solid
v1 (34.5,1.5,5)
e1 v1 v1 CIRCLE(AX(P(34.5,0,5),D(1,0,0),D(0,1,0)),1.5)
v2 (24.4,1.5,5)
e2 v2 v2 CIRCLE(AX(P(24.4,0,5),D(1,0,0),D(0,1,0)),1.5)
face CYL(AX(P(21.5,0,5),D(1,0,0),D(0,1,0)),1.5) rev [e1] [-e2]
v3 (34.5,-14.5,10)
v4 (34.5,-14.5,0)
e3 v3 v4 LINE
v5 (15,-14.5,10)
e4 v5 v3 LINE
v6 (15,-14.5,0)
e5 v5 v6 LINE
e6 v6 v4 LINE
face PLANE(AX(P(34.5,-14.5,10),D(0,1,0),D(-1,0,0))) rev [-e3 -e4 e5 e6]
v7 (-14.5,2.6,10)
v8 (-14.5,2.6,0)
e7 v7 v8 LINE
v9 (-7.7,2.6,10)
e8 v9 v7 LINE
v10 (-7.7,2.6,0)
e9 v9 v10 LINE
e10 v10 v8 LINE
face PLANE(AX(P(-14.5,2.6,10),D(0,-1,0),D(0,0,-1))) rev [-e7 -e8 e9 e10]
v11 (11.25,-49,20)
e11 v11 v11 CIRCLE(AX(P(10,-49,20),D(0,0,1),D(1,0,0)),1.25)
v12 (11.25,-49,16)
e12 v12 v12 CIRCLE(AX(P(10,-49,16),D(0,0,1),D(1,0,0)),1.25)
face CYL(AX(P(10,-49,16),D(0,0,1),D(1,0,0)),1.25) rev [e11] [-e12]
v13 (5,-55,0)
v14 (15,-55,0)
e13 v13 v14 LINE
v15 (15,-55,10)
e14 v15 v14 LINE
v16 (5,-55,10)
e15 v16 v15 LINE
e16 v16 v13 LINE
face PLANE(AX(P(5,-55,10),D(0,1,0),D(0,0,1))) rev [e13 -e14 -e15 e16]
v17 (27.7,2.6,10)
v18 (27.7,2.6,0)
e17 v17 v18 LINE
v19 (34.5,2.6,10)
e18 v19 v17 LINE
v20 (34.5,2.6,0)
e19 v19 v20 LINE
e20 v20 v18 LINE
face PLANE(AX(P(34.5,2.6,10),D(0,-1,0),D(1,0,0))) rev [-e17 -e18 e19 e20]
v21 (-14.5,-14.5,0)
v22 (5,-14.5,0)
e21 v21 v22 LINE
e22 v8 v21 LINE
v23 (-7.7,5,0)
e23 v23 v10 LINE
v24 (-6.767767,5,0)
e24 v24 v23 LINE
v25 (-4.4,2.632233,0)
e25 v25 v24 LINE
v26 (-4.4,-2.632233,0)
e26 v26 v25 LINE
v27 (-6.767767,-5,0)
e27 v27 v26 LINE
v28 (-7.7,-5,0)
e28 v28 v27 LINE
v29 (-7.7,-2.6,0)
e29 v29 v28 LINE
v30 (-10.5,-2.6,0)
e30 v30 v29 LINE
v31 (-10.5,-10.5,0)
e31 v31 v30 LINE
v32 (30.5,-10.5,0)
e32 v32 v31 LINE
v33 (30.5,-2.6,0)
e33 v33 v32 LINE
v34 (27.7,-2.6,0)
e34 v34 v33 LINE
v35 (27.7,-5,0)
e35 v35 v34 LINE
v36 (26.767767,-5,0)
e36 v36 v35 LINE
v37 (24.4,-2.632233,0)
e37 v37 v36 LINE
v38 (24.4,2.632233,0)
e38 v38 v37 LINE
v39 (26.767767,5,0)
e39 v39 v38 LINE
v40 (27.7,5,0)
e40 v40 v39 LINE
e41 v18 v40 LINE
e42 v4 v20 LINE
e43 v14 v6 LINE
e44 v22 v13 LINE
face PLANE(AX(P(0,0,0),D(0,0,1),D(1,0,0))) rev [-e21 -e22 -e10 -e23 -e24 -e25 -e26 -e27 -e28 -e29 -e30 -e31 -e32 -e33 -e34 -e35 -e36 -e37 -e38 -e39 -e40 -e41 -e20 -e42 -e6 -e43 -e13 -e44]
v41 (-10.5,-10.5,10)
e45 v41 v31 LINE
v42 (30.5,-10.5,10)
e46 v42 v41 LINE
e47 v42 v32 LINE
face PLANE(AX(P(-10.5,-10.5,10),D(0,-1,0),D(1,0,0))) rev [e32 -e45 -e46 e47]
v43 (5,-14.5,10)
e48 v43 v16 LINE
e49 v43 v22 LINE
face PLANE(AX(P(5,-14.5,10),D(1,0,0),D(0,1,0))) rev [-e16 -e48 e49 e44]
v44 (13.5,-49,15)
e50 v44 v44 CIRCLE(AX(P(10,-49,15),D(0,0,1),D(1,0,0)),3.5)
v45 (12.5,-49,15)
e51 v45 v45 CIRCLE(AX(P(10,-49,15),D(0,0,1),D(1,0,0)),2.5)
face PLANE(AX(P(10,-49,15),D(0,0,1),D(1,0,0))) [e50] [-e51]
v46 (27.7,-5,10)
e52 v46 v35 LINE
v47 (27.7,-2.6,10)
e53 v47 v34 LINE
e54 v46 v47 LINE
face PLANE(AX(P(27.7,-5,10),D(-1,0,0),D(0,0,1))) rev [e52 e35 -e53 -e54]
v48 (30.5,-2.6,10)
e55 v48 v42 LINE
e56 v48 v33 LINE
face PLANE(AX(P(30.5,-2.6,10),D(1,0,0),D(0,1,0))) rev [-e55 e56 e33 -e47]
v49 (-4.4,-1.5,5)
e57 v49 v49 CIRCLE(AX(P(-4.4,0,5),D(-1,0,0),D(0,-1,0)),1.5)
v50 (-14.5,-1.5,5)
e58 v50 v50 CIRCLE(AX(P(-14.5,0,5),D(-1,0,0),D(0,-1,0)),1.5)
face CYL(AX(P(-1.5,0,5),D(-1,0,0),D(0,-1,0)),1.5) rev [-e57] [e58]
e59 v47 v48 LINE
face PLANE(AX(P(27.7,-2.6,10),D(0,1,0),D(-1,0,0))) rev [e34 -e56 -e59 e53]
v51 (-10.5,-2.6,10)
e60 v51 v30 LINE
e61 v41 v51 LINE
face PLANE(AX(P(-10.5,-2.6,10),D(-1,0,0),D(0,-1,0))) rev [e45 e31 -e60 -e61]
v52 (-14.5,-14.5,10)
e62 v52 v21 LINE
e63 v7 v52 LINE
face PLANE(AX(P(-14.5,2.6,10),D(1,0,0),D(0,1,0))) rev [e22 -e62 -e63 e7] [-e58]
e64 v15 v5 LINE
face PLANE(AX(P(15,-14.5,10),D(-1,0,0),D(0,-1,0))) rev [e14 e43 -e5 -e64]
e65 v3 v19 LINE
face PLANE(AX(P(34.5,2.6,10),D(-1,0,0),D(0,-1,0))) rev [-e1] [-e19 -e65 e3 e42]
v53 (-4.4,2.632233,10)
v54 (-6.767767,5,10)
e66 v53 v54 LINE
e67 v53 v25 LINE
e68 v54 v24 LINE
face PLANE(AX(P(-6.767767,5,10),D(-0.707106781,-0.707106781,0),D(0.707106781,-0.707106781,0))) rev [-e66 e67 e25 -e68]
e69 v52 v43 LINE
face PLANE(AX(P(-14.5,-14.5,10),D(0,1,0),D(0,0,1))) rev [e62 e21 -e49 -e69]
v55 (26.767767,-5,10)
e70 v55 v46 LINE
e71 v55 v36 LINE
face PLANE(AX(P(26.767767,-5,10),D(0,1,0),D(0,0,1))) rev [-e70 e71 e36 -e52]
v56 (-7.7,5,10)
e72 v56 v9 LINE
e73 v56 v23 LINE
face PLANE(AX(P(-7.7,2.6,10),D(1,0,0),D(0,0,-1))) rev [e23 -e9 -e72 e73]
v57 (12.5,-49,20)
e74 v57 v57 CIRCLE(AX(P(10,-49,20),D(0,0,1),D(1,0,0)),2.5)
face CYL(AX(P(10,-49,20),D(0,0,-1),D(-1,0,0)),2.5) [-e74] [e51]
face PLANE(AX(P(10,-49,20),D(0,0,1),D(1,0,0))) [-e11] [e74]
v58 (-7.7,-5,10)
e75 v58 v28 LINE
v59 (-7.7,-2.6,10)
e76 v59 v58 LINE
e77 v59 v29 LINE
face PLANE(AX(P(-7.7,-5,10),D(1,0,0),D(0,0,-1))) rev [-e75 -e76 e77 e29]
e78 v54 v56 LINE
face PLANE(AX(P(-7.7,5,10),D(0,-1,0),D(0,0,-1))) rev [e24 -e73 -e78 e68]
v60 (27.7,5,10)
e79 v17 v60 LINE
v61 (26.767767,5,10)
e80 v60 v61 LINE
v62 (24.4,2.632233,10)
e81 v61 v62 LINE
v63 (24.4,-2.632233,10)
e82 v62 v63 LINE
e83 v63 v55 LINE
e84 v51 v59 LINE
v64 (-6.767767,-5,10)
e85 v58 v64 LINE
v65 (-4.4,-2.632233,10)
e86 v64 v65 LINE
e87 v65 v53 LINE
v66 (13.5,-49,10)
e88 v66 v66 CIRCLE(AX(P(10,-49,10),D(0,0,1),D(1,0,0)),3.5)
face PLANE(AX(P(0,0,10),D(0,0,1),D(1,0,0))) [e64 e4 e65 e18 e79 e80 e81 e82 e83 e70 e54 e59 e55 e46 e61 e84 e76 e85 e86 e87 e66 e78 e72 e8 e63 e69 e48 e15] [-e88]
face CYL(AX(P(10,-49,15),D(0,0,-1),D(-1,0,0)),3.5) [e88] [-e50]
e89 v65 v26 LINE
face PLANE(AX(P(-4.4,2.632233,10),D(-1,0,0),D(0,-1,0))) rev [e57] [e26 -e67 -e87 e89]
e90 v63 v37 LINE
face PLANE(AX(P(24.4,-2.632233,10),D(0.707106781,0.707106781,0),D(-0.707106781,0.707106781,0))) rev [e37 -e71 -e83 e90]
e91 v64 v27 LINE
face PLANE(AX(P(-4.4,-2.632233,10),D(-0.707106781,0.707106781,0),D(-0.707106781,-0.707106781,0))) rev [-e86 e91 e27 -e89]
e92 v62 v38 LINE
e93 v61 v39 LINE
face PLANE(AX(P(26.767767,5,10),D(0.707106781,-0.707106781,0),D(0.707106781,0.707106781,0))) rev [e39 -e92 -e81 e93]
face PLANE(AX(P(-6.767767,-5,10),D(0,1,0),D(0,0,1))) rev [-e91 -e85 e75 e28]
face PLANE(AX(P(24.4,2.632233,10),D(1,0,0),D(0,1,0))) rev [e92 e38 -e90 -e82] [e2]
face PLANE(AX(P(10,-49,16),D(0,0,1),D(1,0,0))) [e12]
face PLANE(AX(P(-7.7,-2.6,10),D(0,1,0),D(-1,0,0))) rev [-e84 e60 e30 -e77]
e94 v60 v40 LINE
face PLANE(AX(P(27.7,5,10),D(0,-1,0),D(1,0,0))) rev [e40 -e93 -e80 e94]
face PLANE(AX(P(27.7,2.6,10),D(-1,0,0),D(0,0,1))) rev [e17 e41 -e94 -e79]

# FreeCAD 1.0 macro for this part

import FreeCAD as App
import Part
import Sketcher

V = App.Vector

doc = App.newDocument("Part")
body = doc.addObject("PartDesign::Body", "Body")

# Sketch on XY plane
sketch1 = body.newObject("Sketcher::SketchObject", "Sketch")
sketch1.AttachmentSupport = (doc.getObject("XY_Plane"), [""])
sketch1.MapMode = "FlatFace"
sketch1.addGeometry([
    Part.LineSegment(V(-7.7, 2.6, 0), V(-14.5, 2.6, 0)),  # 0
    Part.LineSegment(V(-14.5, 2.6, 0), V(-14.5, -14.5, 0)),  # 1
    Part.LineSegment(V(-14.5, -14.5, 0), V(5, -14.5, 0)),  # 2
    Part.LineSegment(V(5, -14.5, 0), V(5, -55, 0)),  # 3
    Part.LineSegment(V(5, -55, 0), V(15, -55, 0)),  # 4
    Part.LineSegment(V(15, -55, 0), V(15, -14.5, 0)),  # 5
    Part.LineSegment(V(15, -14.5, 0), V(34.5, -14.5, 0)),  # 6
    Part.LineSegment(V(34.5, -14.5, 0), V(34.5, 2.6, 0)),  # 7
    Part.LineSegment(V(34.5, 2.6, 0), V(27.7, 2.6, 0)),  # 8
    Part.LineSegment(V(27.7, 2.6, 0), V(27.7, 5, 0)),  # 9
    Part.LineSegment(V(27.7, 5, 0), V(26.767767, 5, 0)),  # 10
    Part.LineSegment(V(26.767767, 5, 0), V(24.4, 2.632233, 0)),  # 11
    Part.LineSegment(V(24.4, 2.632233, 0), V(24.4, -2.632233, 0)),  # 12
    Part.LineSegment(V(24.4, -2.632233, 0), V(26.767767, -5, 0)),  # 13
    Part.LineSegment(V(26.767767, -5, 0), V(27.7, -5, 0)),  # 14
    Part.LineSegment(V(27.7, -5, 0), V(27.7, -2.6, 0)),  # 15
    Part.LineSegment(V(27.7, -2.6, 0), V(30.5, -2.6, 0)),  # 16
    Part.LineSegment(V(30.5, -2.6, 0), V(30.5, -10.5, 0)),  # 17
    Part.LineSegment(V(30.5, -10.5, 0), V(-10.5, -10.5, 0)),  # 18
    Part.LineSegment(V(-10.5, -10.5, 0), V(-10.5, -2.6, 0)),  # 19
    Part.LineSegment(V(-10.5, -2.6, 0), V(-7.7, -2.6, 0)),  # 20
    Part.LineSegment(V(-7.7, -2.6, 0), V(-7.7, -5, 0)),  # 21
    Part.LineSegment(V(-7.7, -5, 0), V(-6.767767, -5, 0)),  # 22
    Part.LineSegment(V(-6.767767, -5, 0), V(-4.4, -2.632233, 0)),  # 23
    Part.LineSegment(V(-4.4, -2.632233, 0), V(-4.4, 2.632233, 0)),  # 24
    Part.LineSegment(V(-4.4, 2.632233, 0), V(-6.767767, 5, 0)),  # 25
    Part.LineSegment(V(-6.767767, 5, 0), V(-7.7, 5, 0)),  # 26
    Part.LineSegment(V(-7.7, 5, 0), V(-7.7, 2.6, 0)),  # 27
], False)
sketch1.addConstraint([
    Sketcher.Constraint("Coincident", 0, 2, 1, 1),
    Sketcher.Constraint("Coincident", 1, 2, 2, 1),
    Sketcher.Constraint("Coincident", 2, 2, 3, 1),
    Sketcher.Constraint("Coincident", 3, 2, 4, 1),
    Sketcher.Constraint("Coincident", 4, 2, 5, 1),
    Sketcher.Constraint("Coincident", 5, 2, 6, 1),
    Sketcher.Constraint("Coincident", 6, 2, 7, 1),
    Sketcher.Constraint("Coincident", 7, 2, 8, 1),
    Sketcher.Constraint("Coincident", 8, 2, 9, 1),
    Sketcher.Constraint("Coincident", 9, 2, 10, 1),
    Sketcher.Constraint("Coincident", 10, 2, 11, 1),
    Sketcher.Constraint("Coincident", 11, 2, 12, 1),
    Sketcher.Constraint("Coincident", 12, 2, 13, 1),
    Sketcher.Constraint("Coincident", 13, 2, 14, 1),
    Sketcher.Constraint("Coincident", 14, 2, 15, 1),
    Sketcher.Constraint("Coincident", 15, 2, 16, 1),
    Sketcher.Constraint("Coincident", 16, 2, 17, 1),
    Sketcher.Constraint("Coincident", 17, 2, 18, 1),
    Sketcher.Constraint("Coincident", 18, 2, 19, 1),
    Sketcher.Constraint("Coincident", 19, 2, 20, 1),
    Sketcher.Constraint("Coincident", 20, 2, 21, 1),
    Sketcher.Constraint("Coincident", 21, 2, 22, 1),
    Sketcher.Constraint("Coincident", 22, 2, 23, 1),
    Sketcher.Constraint("Coincident", 23, 2, 24, 1),
    Sketcher.Constraint("Coincident", 24, 2, 25, 1),
    Sketcher.Constraint("Coincident", 25, 2, 26, 1),
    Sketcher.Constraint("Coincident", 26, 2, 27, 1),
    Sketcher.Constraint("Coincident", 27, 2, 0, 1),
    Sketcher.Constraint("Horizontal", 0),
    Sketcher.Constraint("Vertical", 1),
    Sketcher.Constraint("Horizontal", 2),
    Sketcher.Constraint("Vertical", 3),
    Sketcher.Constraint("Horizontal", 4),
    Sketcher.Constraint("Vertical", 5),
    Sketcher.Constraint("Horizontal", 6),
    Sketcher.Constraint("Vertical", 7),
    Sketcher.Constraint("Horizontal", 8),
    Sketcher.Constraint("Vertical", 9),
    Sketcher.Constraint("Horizontal", 10),
    Sketcher.Constraint("Vertical", 12),
    Sketcher.Constraint("Horizontal", 14),
    Sketcher.Constraint("Vertical", 15),
    Sketcher.Constraint("Horizontal", 16),
    Sketcher.Constraint("Vertical", 17),
    Sketcher.Constraint("Horizontal", 18),
    Sketcher.Constraint("Vertical", 19),
    Sketcher.Constraint("Horizontal", 20),
    Sketcher.Constraint("Vertical", 21),
    Sketcher.Constraint("Horizontal", 22),
    Sketcher.Constraint("Vertical", 24),
    Sketcher.Constraint("Horizontal", 26),
    Sketcher.Constraint("Vertical", 27),
    Sketcher.Constraint("Symmetric", 10, 2, 13, 2, -1),
    Sketcher.Constraint("Symmetric", 8, 2, 15, 2, -1),
    Sketcher.Constraint("Symmetric", 22, 2, 25, 2, -1),
    Sketcher.Constraint("Symmetric", 20, 2, 27, 2, -1),
    Sketcher.Constraint("Perpendicular", 11, 13),
    Sketcher.Constraint("Perpendicular", 13, 23),
    Sketcher.Constraint("Perpendicular", 23, 25),
    Sketcher.Constraint("Horizontal", 2, 2, 5, 2),
    Sketcher.Constraint("Horizontal", 0, 2, 7, 2),
    Sketcher.Constraint("Horizontal", 14, 2, 21, 2),
    Sketcher.Constraint("Horizontal", 12, 2, 23, 2),
    Sketcher.Constraint("Horizontal", 11, 2, 24, 2),
    Sketcher.Constraint("Equal", 2, 6),
    Sketcher.Constraint("Equal", 0, 8),
    Sketcher.Constraint("Equal", 16, 20),
    Sketcher.Constraint("Equal", 14, 22),
    Sketcher.Constraint("DistanceX", 4, 1, 4, 2, 10.0),
    Sketcher.Constraint("DistanceX", 18, 2, 18, 1, 41.0),
    Sketcher.Constraint("DistanceX", 0, 2, 0, 1, 6.8),
    Sketcher.Constraint("DistanceX", 2, 1, 2, 2, 19.5),
    Sketcher.Constraint("DistanceY", 1, 2, 1, 1, 17.1),
    Sketcher.Constraint("DistanceY", 3, 2, 3, 1, 40.5),
    Sketcher.Constraint("DistanceY", 9, 1, 9, 2, 2.4),
    Sketcher.Constraint("DistanceY", 17, 2, 17, 1, 7.9),
    Sketcher.Constraint("DistanceX", -1, 1, 2, 2, 5.0),
    Sketcher.Constraint("DistanceY", 3, 2, -1, 1, 55.0),
    Sketcher.Constraint("DistanceX", -1, 1, 11, 2, 24.4),
    Sketcher.Constraint("Distance", 11, 3.348528),
])
pad1 = body.newObject("PartDesign::Pad", "Pad")
pad1.Profile = sketch1
pad1.Length = 10

# Sketch on YZ plane
sketch2 = body.newObject("Sketcher::SketchObject", "Sketch001")
sketch2.AttachmentSupport = (doc.getObject("YZ_Plane"), [""])
sketch2.MapMode = "FlatFace"
sketch2.AttachmentOffset = App.Placement(V(0, 0, -14.5), App.Rotation())
sketch2.addGeometry(Part.Circle(V(0, 5, 0), V(0, 0, 1), 1.5), False)
sketch2.addConstraint([
    Sketcher.Constraint("PointOnObject", 0, 3, -2),
    Sketcher.Constraint("Diameter", 0, 3.0),
    Sketcher.Constraint("DistanceY", -1, 1, 0, 3, 5.0),
])
pocket1 = body.newObject("PartDesign::Pocket", "Pocket")
pocket1.Profile = sketch2
pocket1.Length = 13
pocket1.Reversed = True

# Sketch on YZ plane
sketch3 = body.newObject("Sketcher::SketchObject", "Sketch002")
sketch3.AttachmentSupport = (doc.getObject("YZ_Plane"), [""])
sketch3.MapMode = "FlatFace"
sketch3.AttachmentOffset = App.Placement(V(0, 0, 21.5), App.Rotation())
sketch3.addGeometry(Part.Circle(V(0, 5, 0), V(0, 0, 1), 1.5), False)
sketch3.addConstraint([
    Sketcher.Constraint("PointOnObject", 0, 3, -2),
    Sketcher.Constraint("Diameter", 0, 3.0),
    Sketcher.Constraint("DistanceY", -1, 1, 0, 3, 5.0),
])
pocket2 = body.newObject("PartDesign::Pocket", "Pocket001")
pocket2.Profile = sketch3
pocket2.Length = 13
pocket2.Reversed = True

# Sketch on XY plane
sketch4 = body.newObject("Sketcher::SketchObject", "Sketch003")
sketch4.AttachmentSupport = (doc.getObject("XY_Plane"), [""])
sketch4.MapMode = "FlatFace"
sketch4.AttachmentOffset = App.Placement(V(0, 0, 10), App.Rotation())
sketch4.addGeometry(Part.Circle(V(10, -49, 0), V(0, 0, 1), 2.5), False)
sketch4.addConstraint([
    Sketcher.Constraint("Diameter", 0, 5.0),
    Sketcher.Constraint("DistanceX", -1, 1, 0, 3, 10.0),
    Sketcher.Constraint("DistanceY", 0, 3, -1, 1, 49.0),
])
pad2 = body.newObject("PartDesign::Pad", "Pad001")
pad2.Profile = sketch4
pad2.Length = 10

# Sketch on XY plane
sketch5 = body.newObject("Sketcher::SketchObject", "Sketch004")
sketch5.AttachmentSupport = (doc.getObject("XY_Plane"), [""])
sketch5.MapMode = "FlatFace"
sketch5.AttachmentOffset = App.Placement(V(0, 0, 10), App.Rotation())
sketch5.addGeometry(Part.Circle(V(10, -49, 0), V(0, 0, 1), 3.5), False)
sketch5.addConstraint([
    Sketcher.Constraint("Diameter", 0, 7.0),
    Sketcher.Constraint("DistanceX", -1, 1, 0, 3, 10.0),
    Sketcher.Constraint("DistanceY", 0, 3, -1, 1, 49.0),
])
pad3 = body.newObject("PartDesign::Pad", "Pad002")
pad3.Profile = sketch5
pad3.Length = 5

# Sketch on XY plane
sketch6 = body.newObject("Sketcher::SketchObject", "Sketch005")
sketch6.AttachmentSupport = (doc.getObject("XY_Plane"), [""])
sketch6.MapMode = "FlatFace"
sketch6.AttachmentOffset = App.Placement(V(0, 0, 20), App.Rotation())
sketch6.addGeometry(Part.Circle(V(10, -49, 0), V(0, 0, 1), 1.25), False)
sketch6.addConstraint([
    Sketcher.Constraint("Diameter", 0, 2.5),
    Sketcher.Constraint("DistanceX", -1, 1, 0, 3, 10.0),
    Sketcher.Constraint("DistanceY", 0, 3, -1, 1, 49.0),
])
pocket3 = body.newObject("PartDesign::Pocket", "Pocket002")
pocket3.Profile = sketch6
pocket3.Length = 4

doc.recompute()
